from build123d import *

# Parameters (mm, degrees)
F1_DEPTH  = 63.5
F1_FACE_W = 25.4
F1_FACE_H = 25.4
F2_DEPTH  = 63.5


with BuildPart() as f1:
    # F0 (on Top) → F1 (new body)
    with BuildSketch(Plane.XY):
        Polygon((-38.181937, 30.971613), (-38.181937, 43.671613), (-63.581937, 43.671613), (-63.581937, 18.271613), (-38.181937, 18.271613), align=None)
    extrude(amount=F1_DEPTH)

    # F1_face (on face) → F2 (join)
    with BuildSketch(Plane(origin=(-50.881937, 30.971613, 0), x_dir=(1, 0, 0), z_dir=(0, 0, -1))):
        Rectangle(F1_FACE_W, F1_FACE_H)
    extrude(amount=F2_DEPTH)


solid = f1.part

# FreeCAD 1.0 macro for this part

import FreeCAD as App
import Part
import Sketcher
from FreeCAD import Vector
Q = App.Units.Quantity


def add_polygon(sketch, points):
    """Adds a closed chain of lines whose ends are joined by coincident constraints."""
    first, n = sketch.GeometryCount, len(points)
    for a, b in zip(points, points[1:] + points[:1]):
        sketch.addGeometry(Part.LineSegment(App.Vector(*a, 0), App.Vector(*b, 0)), False)
    for i in range(n):
        sketch.addConstraint(Sketcher.Constraint("Coincident", first + i, 2, first + (i + 1) % n, 1))

doc = App.newDocument("Part")
body = doc.addObject("PartDesign::Body", "Body")

# Sketch on XY plane
sketch1 = doc.addObject("Sketcher::SketchObject", "Sketch")
body.addObject(sketch1)
sketch1.AttachmentSupport = (doc.XY_Plane, [""])
sketch1.MapMode = "FlatFace"
add_polygon(sketch1, [(-38.181937, 43.671613), (-63.581937, 43.671613), (-63.581937, 18.271613), (-38.181937, 18.271613)])  # lines 0-3
sketch1.addConstraint([
    Sketcher.Constraint("Horizontal", 0),
    Sketcher.Constraint("Vertical", 1),
    Sketcher.Constraint("Horizontal", 2),
    Sketcher.Constraint("Vertical", 3),
    Sketcher.Constraint("Equal", 2, 1),
    Sketcher.Constraint("DistanceX", 0, 2, 0, 1, Q("1 in")),
    Sketcher.Constraint("DistanceX", 0, 2, -1, 1, Q("63.581937 mm")),
    Sketcher.Constraint("DistanceY", -1, 1, 0, 2, Q("43.671613 mm")),
])
pad1 = doc.addObject("PartDesign::Pad", "Pad")
body.addObject(pad1)
pad1.Profile = sketch1
pad1.Length = Q("2.5 in")

# Sketch on XY plane
sketch2 = doc.addObject("Sketcher::SketchObject", "Sketch001")
body.addObject(sketch2)
sketch2.AttachmentSupport = (doc.XY_Plane, [""])
sketch2.MapMode = "FlatFace"
add_polygon(sketch2, [(-63.581937, 18.271613), (-63.581937, 43.671613), (-38.181937, 43.671613), (-38.181937, 18.271613)])  # lines 0-3
sketch2.addConstraint([
    Sketcher.Constraint("Vertical", 0),
    Sketcher.Constraint("Horizontal", 1),
    Sketcher.Constraint("Vertical", 2),
    Sketcher.Constraint("Horizontal", 3),
    Sketcher.Constraint("Equal", 3, 0),
    Sketcher.Constraint("DistanceX", 1, 1, 1, 2, Q("1 in")),
    Sketcher.Constraint("DistanceX", 0, 2, -1, 1, Q("63.581937 mm")),
    Sketcher.Constraint("DistanceY", -1, 1, 0, 2, Q("43.671613 mm")),
])
pad2 = doc.addObject("PartDesign::Pad", "Pad001")
body.addObject(pad2)
pad2.Profile = sketch2
pad2.Length = Q("2.5 in")
pad2.Reversed = True

doc.recompute()
